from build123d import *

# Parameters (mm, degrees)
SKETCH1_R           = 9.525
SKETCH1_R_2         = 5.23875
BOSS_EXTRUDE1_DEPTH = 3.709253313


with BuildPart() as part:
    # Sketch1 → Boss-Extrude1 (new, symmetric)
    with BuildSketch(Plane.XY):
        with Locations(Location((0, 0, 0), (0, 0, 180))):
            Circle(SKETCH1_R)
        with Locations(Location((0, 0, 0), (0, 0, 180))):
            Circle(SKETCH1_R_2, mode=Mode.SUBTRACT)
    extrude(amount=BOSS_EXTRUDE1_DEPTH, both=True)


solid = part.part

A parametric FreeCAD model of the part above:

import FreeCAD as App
import Part
import Sketcher
from FreeCAD import Vector
Q = App.Units.Quantity

doc = App.newDocument("Part")
body = doc.addObject("PartDesign::Body", "Body")

sketch1 = doc.addObject("Sketcher::SketchObject", "Sketch")
body.addObject(sketch1)
sketch1.AttachmentSupport = (doc.XY_Plane, [""])
sketch1.MapMode = "FlatFace"
sketch1.addGeometry([
    Part.Circle(Vector(0, 0, 0), Vector(0, 0, 1), 10),
    Part.Circle(Vector(0, 0, 0), Vector(0, 0, 1), 5),
], False)
sketch1.addConstraint([
    Sketcher.Constraint("Coincident", 0, 3, -1, 1),
    Sketcher.Constraint("Coincident", 1, 3, -1, 1),
    Sketcher.Constraint("Diameter", 0, Q("0.75 in")),
    Sketcher.Constraint("Diameter", 1, Q("0.4125 in")),
])
pad1 = doc.addObject("PartDesign::Pad", "Pad")
body.addObject(pad1)
pad1.Profile = sketch1
pad1.Length = 7.418507
pad1.Midplane = True

doc.recompute()
